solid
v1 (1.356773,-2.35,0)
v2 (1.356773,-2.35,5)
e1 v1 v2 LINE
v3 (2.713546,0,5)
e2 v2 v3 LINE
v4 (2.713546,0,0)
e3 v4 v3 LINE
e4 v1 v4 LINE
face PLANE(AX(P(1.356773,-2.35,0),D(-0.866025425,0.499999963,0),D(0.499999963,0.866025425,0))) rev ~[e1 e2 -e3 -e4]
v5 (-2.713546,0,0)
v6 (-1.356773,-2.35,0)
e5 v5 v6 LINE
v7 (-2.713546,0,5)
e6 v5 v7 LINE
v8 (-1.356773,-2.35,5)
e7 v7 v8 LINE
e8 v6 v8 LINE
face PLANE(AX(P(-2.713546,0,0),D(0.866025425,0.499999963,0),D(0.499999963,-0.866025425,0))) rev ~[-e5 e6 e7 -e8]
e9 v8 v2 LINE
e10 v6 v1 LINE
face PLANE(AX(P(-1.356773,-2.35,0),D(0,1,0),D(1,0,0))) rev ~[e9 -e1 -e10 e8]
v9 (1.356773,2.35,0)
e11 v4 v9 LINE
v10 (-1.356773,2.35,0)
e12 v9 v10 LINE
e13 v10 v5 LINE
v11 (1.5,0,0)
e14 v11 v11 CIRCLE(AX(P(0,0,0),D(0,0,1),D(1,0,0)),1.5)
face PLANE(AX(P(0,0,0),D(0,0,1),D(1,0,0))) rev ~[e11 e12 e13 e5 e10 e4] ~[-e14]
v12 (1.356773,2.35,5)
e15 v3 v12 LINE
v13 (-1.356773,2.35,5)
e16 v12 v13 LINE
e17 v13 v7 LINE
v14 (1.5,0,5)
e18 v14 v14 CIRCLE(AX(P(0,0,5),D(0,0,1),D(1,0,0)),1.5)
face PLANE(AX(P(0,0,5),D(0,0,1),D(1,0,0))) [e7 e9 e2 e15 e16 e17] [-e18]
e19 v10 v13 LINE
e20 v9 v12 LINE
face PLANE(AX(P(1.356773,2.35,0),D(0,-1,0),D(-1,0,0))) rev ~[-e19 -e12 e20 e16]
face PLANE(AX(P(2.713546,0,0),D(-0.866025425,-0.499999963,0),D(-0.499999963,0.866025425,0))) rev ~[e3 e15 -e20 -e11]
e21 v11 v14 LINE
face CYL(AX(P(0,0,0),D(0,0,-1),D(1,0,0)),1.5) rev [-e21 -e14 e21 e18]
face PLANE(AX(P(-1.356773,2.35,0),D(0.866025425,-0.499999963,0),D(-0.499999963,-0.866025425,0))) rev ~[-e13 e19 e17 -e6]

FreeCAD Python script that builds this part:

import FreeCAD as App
import Part
import Sketcher

V = App.Vector
Q = App.Units.Quantity

doc = App.newDocument("Part")
body = doc.addObject("PartDesign::Body", "Body")

# Sketch on XY plane
sketch1 = body.newObject("Sketcher::SketchObject", "Sketch")
sketch1.AttachmentSupport = (doc.getObject("XY_Plane"), [""])
sketch1.MapMode = "FlatFace"
sketch1.addGeometry([
    Part.LineSegment(V(1.356773, -2.35, 0), V(2.713546, 0, 0)),  # 0
    Part.LineSegment(V(2.713546, 0, 0), V(1.356773, 2.35, 0)),  # 1
    Part.LineSegment(V(1.356773, 2.35, 0), V(-1.356773, 2.35, 0)),  # 2
    Part.LineSegment(V(-1.356773, 2.35, 0), V(-2.713546, 0, 0)),  # 3
    Part.LineSegment(V(-2.713546, 0, 0), V(-1.356773, -2.35, 0)),  # 4
    Part.LineSegment(V(-1.356773, -2.35, 0), V(1.356773, -2.35, 0)),  # 5
    Part.Circle(V(0, 0, 0), V(0, 0, 1), 1.5),  # 6
], False)
sketch1.addConstraint([
    Sketcher.Constraint("Coincident", 0, 2, 1, 1),
    Sketcher.Constraint("Coincident", 1, 2, 2, 1),
    Sketcher.Constraint("Coincident", 2, 2, 3, 1),
    Sketcher.Constraint("Coincident", 3, 2, 4, 1),
    Sketcher.Constraint("Coincident", 4, 2, 5, 1),
    Sketcher.Constraint("Coincident", 5, 2, 0, 1),
    Sketcher.Constraint("Horizontal", 2),
    Sketcher.Constraint("Horizontal", 5),
    Sketcher.Constraint("Coincident", 6, 3, -1, 1),
    Sketcher.Constraint("Symmetric", 0, 2, 3, 2, -1, 1),
    Sketcher.Constraint("Symmetric", 1, 2, 4, 2, -1, 1),
    Sketcher.Constraint("PointOnObject", 0, 2, -1),
    Sketcher.Constraint("Parallel", 0, 3),
    Sketcher.Constraint("Vertical", 2, 2, 4, 2),
    Sketcher.Constraint("Diameter", 6, Q("3 mm")),
    Sketcher.Constraint("Angle", 0, Q("60.000002 deg")),
    Sketcher.Constraint("DistanceY", 4, 2, 2, 2, Q("4.7 mm")),
    Sketcher.Constraint("DistanceX", 2, 2, 2, 1, Q("2.713546 mm")),
])
pad1 = body.newObject("PartDesign::Pad", "Pad")
pad1.Profile = sketch1
pad1.Length = 5

doc.recompute()
